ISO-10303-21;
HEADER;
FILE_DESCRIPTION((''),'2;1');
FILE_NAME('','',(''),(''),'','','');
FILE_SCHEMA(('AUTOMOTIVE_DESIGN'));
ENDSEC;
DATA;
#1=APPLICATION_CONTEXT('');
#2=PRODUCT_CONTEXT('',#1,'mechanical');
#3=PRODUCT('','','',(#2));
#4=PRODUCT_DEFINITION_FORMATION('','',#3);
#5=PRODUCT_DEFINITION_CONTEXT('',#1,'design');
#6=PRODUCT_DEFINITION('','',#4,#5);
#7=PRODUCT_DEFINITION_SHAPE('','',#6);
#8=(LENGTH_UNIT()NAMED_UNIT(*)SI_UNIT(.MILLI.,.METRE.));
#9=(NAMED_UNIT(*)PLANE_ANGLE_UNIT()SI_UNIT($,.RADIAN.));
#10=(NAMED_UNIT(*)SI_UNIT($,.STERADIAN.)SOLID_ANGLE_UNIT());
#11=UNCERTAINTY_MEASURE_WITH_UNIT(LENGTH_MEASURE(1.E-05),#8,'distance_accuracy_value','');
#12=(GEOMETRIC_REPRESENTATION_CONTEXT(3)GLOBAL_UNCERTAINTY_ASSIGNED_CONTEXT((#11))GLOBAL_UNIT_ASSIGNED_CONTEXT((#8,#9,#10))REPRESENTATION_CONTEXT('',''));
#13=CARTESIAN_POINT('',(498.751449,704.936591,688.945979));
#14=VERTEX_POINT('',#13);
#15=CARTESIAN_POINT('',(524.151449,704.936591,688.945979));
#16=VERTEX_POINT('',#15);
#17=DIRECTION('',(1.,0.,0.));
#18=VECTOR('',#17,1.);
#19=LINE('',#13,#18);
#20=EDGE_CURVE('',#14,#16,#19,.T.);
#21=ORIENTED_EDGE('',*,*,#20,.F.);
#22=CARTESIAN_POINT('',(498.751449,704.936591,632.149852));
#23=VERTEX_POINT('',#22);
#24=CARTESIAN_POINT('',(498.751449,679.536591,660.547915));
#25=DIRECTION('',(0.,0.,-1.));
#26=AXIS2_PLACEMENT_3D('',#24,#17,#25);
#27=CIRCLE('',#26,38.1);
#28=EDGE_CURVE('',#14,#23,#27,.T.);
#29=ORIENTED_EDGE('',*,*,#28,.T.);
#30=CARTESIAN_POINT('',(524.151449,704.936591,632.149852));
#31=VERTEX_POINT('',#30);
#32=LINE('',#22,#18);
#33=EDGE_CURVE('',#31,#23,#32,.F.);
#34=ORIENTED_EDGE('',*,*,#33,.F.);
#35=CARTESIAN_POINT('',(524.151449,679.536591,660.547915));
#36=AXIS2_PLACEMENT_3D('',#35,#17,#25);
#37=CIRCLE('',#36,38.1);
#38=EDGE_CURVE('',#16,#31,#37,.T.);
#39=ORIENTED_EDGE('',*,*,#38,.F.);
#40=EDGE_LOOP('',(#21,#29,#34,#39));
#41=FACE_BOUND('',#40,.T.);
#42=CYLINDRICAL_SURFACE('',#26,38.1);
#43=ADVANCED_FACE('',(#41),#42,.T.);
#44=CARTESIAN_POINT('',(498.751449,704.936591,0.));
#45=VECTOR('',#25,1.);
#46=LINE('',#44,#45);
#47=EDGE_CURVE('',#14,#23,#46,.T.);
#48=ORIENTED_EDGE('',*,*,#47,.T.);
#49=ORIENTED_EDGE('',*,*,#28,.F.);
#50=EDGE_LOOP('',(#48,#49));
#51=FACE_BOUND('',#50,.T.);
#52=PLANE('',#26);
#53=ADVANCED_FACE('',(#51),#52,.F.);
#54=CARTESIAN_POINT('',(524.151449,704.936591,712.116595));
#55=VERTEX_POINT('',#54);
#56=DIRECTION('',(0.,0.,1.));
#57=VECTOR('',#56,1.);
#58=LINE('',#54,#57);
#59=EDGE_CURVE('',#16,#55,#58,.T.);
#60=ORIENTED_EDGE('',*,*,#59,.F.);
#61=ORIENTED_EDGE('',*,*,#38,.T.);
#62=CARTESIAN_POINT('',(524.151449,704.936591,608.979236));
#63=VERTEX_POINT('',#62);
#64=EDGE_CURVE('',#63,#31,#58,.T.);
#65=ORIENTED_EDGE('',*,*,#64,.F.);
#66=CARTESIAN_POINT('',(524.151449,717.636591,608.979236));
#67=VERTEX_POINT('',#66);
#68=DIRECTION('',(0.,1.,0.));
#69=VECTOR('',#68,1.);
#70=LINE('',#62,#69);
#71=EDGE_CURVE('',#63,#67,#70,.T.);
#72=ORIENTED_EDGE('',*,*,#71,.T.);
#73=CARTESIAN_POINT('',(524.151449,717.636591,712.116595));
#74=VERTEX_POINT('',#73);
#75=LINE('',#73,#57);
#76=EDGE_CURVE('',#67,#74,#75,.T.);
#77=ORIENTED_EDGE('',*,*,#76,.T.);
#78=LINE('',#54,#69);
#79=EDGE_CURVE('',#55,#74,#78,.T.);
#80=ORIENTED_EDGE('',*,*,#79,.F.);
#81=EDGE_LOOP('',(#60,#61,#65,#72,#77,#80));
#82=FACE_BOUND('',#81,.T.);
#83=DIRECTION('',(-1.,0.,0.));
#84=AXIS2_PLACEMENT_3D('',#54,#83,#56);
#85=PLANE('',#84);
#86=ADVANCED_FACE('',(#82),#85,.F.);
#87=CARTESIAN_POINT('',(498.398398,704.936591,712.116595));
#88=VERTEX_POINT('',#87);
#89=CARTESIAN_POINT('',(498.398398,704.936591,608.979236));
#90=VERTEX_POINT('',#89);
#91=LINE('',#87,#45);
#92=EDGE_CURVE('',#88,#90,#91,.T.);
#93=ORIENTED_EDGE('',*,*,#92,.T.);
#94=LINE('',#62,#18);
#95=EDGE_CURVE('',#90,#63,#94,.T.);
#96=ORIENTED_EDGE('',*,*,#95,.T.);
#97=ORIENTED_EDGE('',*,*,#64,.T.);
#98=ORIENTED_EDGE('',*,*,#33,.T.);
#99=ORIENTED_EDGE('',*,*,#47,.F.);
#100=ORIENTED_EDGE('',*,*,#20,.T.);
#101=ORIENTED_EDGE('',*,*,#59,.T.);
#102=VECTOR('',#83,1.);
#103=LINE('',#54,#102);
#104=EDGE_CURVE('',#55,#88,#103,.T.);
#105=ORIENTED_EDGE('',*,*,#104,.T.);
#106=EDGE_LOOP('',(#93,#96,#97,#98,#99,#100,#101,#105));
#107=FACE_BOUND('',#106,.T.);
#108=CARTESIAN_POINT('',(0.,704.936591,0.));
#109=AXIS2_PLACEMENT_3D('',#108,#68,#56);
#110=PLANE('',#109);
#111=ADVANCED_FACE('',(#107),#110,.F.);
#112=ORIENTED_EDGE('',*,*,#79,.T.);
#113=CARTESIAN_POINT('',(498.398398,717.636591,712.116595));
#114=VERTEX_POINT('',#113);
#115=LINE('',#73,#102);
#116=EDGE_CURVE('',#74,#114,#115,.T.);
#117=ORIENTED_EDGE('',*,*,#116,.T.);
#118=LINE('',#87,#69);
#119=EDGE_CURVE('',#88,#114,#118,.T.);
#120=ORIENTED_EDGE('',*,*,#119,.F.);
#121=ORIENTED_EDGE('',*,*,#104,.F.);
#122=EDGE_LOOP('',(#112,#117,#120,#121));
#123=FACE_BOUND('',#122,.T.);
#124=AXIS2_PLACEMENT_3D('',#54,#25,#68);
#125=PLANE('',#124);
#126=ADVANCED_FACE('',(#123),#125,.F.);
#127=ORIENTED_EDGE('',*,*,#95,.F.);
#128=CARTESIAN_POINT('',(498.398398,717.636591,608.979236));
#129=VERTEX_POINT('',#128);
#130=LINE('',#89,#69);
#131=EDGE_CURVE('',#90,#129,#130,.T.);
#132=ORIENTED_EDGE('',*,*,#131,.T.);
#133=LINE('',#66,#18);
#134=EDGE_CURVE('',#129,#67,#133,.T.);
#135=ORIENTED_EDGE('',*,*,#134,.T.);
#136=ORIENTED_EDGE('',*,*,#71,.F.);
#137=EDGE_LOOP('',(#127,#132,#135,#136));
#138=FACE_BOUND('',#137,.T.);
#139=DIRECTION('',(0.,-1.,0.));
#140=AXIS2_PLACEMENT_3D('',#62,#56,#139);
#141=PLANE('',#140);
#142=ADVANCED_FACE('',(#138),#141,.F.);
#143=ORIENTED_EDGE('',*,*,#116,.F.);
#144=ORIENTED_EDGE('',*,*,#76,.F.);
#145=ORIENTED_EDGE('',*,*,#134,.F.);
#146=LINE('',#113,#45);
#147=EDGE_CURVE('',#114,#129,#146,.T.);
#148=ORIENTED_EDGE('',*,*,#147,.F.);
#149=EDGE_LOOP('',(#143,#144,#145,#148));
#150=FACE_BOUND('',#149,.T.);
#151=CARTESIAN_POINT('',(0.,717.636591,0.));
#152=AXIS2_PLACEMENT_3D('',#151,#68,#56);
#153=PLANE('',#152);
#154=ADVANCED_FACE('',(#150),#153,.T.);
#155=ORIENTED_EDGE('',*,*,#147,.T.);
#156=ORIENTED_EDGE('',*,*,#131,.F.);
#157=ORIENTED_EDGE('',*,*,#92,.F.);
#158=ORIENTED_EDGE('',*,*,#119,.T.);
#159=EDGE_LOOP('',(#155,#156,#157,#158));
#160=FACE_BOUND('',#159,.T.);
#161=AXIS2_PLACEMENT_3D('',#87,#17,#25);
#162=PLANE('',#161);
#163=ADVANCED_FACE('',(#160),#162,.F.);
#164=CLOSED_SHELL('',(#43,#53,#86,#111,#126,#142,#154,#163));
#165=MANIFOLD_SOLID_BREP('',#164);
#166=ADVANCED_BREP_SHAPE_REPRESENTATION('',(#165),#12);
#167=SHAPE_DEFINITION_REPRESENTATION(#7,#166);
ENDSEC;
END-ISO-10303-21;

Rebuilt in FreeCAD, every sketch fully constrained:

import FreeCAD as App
import Part
import Sketcher

V = App.Vector
Q = App.Units.Quantity

doc = App.newDocument("Part")
params = doc.addObject("Spreadsheet::Sheet", "Params")
for row, (alias, value) in enumerate([
    ("pad1_length", "0.5 in"),
    ("sketch2_diameter", "3 in"),
    ("pad2_length", "1 in"),
], start=1):
    params.set(f"A{row}", alias)
    params.set(f"B{row}", "=" + value)
    params.setAlias(f"B{row}", alias)

body = doc.addObject("PartDesign::Body", "Body")

# Sketch on XZ plane
sketch1 = body.newObject("Sketcher::SketchObject", "Sketch")
sketch1.AttachmentSupport = (doc.getObject("XZ_Plane"), [""])
sketch1.MapMode = "FlatFace"
sketch1.AttachmentOffset = App.Placement(V(0, 0, -717.636591), App.Rotation())
sketch1.addGeometry([
    Part.LineSegment(V(524, 609, 0), V(524, 712, 0)),
    Part.LineSegment(V(524, 712, 0), V(498, 712, 0)),
    Part.LineSegment(V(498, 712, 0), V(498, 609, 0)),
    Part.LineSegment(V(498, 609, 0), V(524, 609, 0)),
], False)
sketch1.addConstraint([
    Sketcher.Constraint("Coincident", 0, 2, 1, 1),
    Sketcher.Constraint("Coincident", 1, 2, 2, 1),
    Sketcher.Constraint("Coincident", 2, 2, 3, 1),
    Sketcher.Constraint("Coincident", 3, 2, 0, 1),
    Sketcher.Constraint("Vertical", 0),
    Sketcher.Constraint("Horizontal", 1),
    Sketcher.Constraint("Vertical", 2),
    Sketcher.Constraint("Horizontal", 3),
    Sketcher.Constraint("DistanceX", 1, 2, 1, 1, 25.75305),
    Sketcher.Constraint("DistanceY", 0, 1, 0, 2, 103.137359),
    Sketcher.Constraint("DistanceX", -1, 1, 1, 2, 498.398398),
    Sketcher.Constraint("DistanceY", -1, 1, 0, 2, 712.116595),
])
pad1 = body.newObject("PartDesign::Pad", "Pad")
pad1.Profile = sketch1
pad1.setExpression("Length", "Params.pad1_length")

# Sketch on YZ plane
sketch2 = body.newObject("Sketcher::SketchObject", "Sketch001")
sketch2.AttachmentSupport = (doc.getObject("YZ_Plane"), [""])
sketch2.MapMode = "FlatFace"
sketch2.AttachmentOffset = App.Placement(V(0, 0, 524.151449), App.Rotation())
sketch2.addGeometry(Part.Circle(V(680, 661, 0), V(0, 0, 1), 38), False)
sketch2.addConstraint([
    Sketcher.Constraint("Diameter", 0, Q("3 in")),
    Sketcher.Constraint("DistanceX", -1, 1, 0, 3, 679.536591),
    Sketcher.Constraint("DistanceY", -1, 1, 0, 3, 660.547915),
])
sketch2.setExpression("Constraints[0]", "Params.sketch2_diameter")
pad2 = body.newObject("PartDesign::Pad", "Pad001")
pad2.Profile = sketch2
pad2.setExpression("Length", "Params.pad2_length")
pad2.Reversed = True

doc.recompute()
